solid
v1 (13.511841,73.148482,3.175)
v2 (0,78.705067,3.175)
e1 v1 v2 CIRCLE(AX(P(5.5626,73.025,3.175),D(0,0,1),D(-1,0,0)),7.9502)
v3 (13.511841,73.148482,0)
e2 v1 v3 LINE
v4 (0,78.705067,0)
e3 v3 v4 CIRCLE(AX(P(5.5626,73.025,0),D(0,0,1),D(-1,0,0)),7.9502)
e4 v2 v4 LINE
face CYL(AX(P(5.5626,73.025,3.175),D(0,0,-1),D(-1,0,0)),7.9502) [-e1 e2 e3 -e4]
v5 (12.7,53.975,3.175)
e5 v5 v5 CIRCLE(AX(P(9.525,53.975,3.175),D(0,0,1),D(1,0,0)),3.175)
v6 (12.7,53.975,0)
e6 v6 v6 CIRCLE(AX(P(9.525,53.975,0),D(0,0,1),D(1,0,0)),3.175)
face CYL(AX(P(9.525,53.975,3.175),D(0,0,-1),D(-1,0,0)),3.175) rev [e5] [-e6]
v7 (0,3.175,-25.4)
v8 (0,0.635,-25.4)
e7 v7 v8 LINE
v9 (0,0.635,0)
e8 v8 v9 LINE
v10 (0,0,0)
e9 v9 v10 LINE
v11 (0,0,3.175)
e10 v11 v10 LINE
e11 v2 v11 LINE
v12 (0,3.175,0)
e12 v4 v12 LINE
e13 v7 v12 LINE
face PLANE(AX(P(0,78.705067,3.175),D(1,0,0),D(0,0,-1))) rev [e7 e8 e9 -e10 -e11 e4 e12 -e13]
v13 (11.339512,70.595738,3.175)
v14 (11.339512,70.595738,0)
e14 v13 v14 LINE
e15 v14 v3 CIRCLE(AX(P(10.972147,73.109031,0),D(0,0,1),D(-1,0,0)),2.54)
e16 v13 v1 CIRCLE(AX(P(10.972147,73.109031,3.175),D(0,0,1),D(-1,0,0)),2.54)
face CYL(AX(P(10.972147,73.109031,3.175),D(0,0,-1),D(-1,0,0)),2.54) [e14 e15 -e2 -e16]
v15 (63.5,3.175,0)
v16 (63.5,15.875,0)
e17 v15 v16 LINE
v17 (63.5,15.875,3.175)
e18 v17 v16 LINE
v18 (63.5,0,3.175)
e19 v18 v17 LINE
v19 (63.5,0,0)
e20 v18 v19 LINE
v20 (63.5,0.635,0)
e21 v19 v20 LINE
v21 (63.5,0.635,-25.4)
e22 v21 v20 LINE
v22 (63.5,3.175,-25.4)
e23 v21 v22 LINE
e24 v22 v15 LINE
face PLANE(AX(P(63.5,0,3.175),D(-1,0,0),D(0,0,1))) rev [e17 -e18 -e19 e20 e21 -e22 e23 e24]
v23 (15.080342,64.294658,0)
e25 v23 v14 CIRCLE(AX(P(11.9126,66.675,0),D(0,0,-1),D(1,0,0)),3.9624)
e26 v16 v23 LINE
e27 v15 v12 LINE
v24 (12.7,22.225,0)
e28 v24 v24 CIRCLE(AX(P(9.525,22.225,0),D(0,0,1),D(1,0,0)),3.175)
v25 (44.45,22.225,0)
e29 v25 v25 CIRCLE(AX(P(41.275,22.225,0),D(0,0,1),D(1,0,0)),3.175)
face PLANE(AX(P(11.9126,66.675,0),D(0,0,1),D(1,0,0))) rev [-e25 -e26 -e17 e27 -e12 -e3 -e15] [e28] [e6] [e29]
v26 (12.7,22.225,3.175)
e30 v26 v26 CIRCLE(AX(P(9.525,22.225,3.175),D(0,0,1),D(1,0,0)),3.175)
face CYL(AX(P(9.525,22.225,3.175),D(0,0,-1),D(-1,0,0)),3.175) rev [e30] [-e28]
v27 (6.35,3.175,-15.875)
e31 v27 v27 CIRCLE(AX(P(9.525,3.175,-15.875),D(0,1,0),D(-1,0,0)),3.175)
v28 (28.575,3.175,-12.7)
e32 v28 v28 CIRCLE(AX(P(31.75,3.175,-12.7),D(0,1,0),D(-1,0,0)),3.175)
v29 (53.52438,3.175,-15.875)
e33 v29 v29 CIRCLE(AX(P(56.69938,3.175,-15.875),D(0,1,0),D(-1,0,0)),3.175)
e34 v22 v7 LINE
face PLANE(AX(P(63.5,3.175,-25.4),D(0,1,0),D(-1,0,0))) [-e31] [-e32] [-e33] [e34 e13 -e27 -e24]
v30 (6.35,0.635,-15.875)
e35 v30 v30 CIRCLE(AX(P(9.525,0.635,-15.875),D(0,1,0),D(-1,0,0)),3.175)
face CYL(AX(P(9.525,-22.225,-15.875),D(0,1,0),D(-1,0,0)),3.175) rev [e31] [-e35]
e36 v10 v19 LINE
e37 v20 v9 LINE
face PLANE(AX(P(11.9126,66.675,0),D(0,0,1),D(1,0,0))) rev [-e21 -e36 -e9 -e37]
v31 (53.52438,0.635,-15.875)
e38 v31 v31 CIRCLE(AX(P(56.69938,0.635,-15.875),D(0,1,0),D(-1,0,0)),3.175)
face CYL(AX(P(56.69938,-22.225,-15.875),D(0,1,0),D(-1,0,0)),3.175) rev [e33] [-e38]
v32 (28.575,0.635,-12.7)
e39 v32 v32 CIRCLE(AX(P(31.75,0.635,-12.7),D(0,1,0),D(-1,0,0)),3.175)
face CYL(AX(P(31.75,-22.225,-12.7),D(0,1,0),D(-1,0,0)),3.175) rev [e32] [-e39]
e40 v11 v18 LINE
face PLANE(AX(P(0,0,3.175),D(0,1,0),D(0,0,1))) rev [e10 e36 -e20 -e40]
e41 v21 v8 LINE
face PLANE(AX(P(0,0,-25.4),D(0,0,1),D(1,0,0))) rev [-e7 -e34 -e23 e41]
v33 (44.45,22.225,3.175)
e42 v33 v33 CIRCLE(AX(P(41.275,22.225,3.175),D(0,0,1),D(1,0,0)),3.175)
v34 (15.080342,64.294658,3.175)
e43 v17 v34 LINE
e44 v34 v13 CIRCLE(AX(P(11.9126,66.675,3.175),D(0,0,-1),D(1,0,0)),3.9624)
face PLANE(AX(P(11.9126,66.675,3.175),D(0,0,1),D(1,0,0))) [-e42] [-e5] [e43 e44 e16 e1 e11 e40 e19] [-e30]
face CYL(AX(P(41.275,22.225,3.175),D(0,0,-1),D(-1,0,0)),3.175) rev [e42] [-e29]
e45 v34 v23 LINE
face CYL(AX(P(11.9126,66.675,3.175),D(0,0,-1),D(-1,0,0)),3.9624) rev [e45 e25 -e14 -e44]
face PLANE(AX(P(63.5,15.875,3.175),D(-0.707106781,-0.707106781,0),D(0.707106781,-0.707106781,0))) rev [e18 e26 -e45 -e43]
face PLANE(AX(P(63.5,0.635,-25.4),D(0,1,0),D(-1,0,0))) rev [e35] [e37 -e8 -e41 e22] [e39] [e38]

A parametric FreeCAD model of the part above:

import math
import FreeCAD as App
import Part
import Sketcher

V = App.Vector
Q = App.Units.Quantity


def add_polygon(sketch, points):
    """Adds a closed chain of lines whose ends are joined by coincident constraints."""
    first, n = sketch.GeometryCount, len(points)
    for a, b in zip(points, points[1:] + points[:1]):
        sketch.addGeometry(Part.LineSegment(App.Vector(*a, 0), App.Vector(*b, 0)), False)
    for i in range(n):
        sketch.addConstraint(Sketcher.Constraint("Coincident", first + i, 2, first + (i + 1) % n, 1))

doc = App.newDocument("Part")
body = doc.addObject("PartDesign::Body", "Body")

sketch1 = body.newObject("Sketcher::SketchObject", "Sketch")
sketch1.AttachmentSupport = (doc.getObject("XY_Plane"), [""])
sketch1.MapMode = "FlatFace"
sketch1.addGeometry(Part.LineSegment(V(0, 0, 0), V(63.5, 0, 0)), False)
sketch1.addGeometry(Part.LineSegment(V(63.5, 0, 0), V(63.5, 15.9, 0)), False)
sketch1.addGeometry(Part.LineSegment(V(63.5, 15.9, 0), V(15.1, 64.3, 0)), False)
sketch1.addGeometry(Part.ArcOfCircle(Part.Circle(V(11.9, 66.7, 0), V(0, 0, 1), 4), math.radians(98), math.radians(323)), False)
sketch1.addGeometry(Part.ArcOfCircle(Part.Circle(V(11, 73.1, 0), V(0, 0, 1), 2.5), math.radians(-82), math.radians(1)), False)
sketch1.addGeometry(Part.ArcOfCircle(Part.Circle(V(5.6, 73, 0), V(0, 0, 1), 8), math.radians(1), math.radians(134)), False)
sketch1.addGeometry(Part.LineSegment(V(0, 78.7, 0), V(0, 0, 0)), False)
sketch1.addGeometry(Part.Circle(V(9.5, 22.2, 0), V(0, 0, 1), 3.2), False)
sketch1.addGeometry(Part.Circle(V(41.3, 22.2, 0), V(0, 0, 1), 3.2), False)
sketch1.addGeometry(Part.Circle(V(9.5, 54, 0), V(0, 0, 1), 3.2), False)
sketch1.addConstraint(Sketcher.Constraint("Coincident", 0, 2, 1, 1))
sketch1.addConstraint(Sketcher.Constraint("Coincident", 1, 2, 2, 1))
sketch1.addConstraint(Sketcher.Constraint("Coincident", 2, 2, 3, 2))
sketch1.addConstraint(Sketcher.Constraint("Tangent", 3, 1, 4, 1))
sketch1.addConstraint(Sketcher.Constraint("Tangent", 4, 2, 5, 1))
sketch1.addConstraint(Sketcher.Constraint("Coincident", 5, 2, 6, 1))
sketch1.addConstraint(Sketcher.Constraint("Coincident", 6, 2, 0, 1))
sketch1.addConstraint(Sketcher.Constraint("Horizontal", 0))
sketch1.addConstraint(Sketcher.Constraint("Vertical", 1))
sketch1.addConstraint(Sketcher.Constraint("Vertical", 6))
sketch1.addConstraint(Sketcher.Constraint("Coincident", 6, 2, -1, 1))
sketch1.addConstraint(Sketcher.Constraint("Equal", 7, 8))
sketch1.addConstraint(Sketcher.Constraint("Equal", 8, 9))
sketch1.addConstraint(Sketcher.Constraint("Horizontal", 7, 3, 8, 3))
sketch1.addConstraint(Sketcher.Constraint("Vertical", 7, 3, 9, 3))
sketch1.addConstraint(Sketcher.Constraint("Radius", 4, Q("0.1 in")))
sketch1.addConstraint(Sketcher.Constraint("Diameter", 7, Q("0.25 in")))
sketch1.addConstraint(Sketcher.Constraint("DistanceX", 0, 1, 0, 2, Q("2.5 in")))
sketch1.addConstraint(Sketcher.Constraint("Angle", 2, Q("135 deg")))
sketch1.addConstraint(Sketcher.Constraint("Radius", 3, Q("0.156 in")))
sketch1.addConstraint(Sketcher.Constraint("Radius", 5, Q("0.313 in")))
sketch1.addConstraint(Sketcher.Constraint("DistanceY", 7, 3, 5, 3, Q("2 in")))
sketch1.addConstraint(Sketcher.Constraint("DistanceY", 1, 2, 3, 3, Q("2 in")))
sketch1.addConstraint(Sketcher.Constraint("DistanceY", 9, 3, 3, 3, Q("0.5 in")))
sketch1.addConstraint(Sketcher.Constraint("DistanceY", 1, 1, 1, 2, Q("0.625 in")))
sketch1.addConstraint(Sketcher.Constraint("DistanceX", 5, 3, 3, 3, Q("0.25 in")))
sketch1.addConstraint(Sketcher.Constraint("DistanceY", 3, 3, 5, 3, Q("0.25 in")))
sketch1.addConstraint(Sketcher.Constraint("DistanceX", 7, 3, 8, 3, Q("1.25 in")))
sketch1.addConstraint(Sketcher.Constraint("DistanceX", -1, 1, 3, 3, Q("0.469 in")))
sketch1.addConstraint(Sketcher.Constraint("DistanceX", -1, 1, 7, 3, Q("0.375 in")))
pad1 = body.newObject("PartDesign::Pad", "Pad")
pad1.Profile = sketch1
pad1.Length = Q("0.125 in")

sketch2 = body.newObject("Sketcher::SketchObject", "Sketch001")
sketch2.AttachmentSupport = (doc.getObject("XY_Plane"), [""])
sketch2.MapMode = "FlatFace"
add_polygon(sketch2, [(63.5, 3.2), (63.5, 0.6), (0, 0.6), (0, 3.2)])
sketch2.addConstraint(Sketcher.Constraint("Vertical", 0))
sketch2.addConstraint(Sketcher.Constraint("Horizontal", 1))
sketch2.addConstraint(Sketcher.Constraint("Vertical", 2))
sketch2.addConstraint(Sketcher.Constraint("Horizontal", 3))
sketch2.addConstraint(Sketcher.Constraint("PointOnObject", 1, 2, -2))
sketch2.addConstraint(Sketcher.Constraint("DistanceX", 1, 2, 1, 1, Q("2.5 in")))
sketch2.addConstraint(Sketcher.Constraint("DistanceY", 0, 2, 0, 1, Q("0.1 in")))
sketch2.addConstraint(Sketcher.Constraint("DistanceY", -1, 1, 0, 2, Q("0.025 in")))
pad2 = body.newObject("PartDesign::Pad", "Pad001")
pad2.Profile = sketch2
pad2.Length = Q("1 in")
pad2.Reversed = True

sketch3 = body.newObject("Sketcher::SketchObject", "Sketch002")
sketch3.AttachmentSupport = (doc.getObject("XZ_Plane"), [""])
sketch3.MapMode = "FlatFace"
sketch3.AttachmentOffset = App.Placement(V(0, 0, -0.125 * 25.4), App.Rotation())
sketch3.addGeometry(Part.Circle(V(31.8, -12.7, 0), V(0, 0, 1), 3.2), False)
sketch3.addGeometry(Part.Circle(V(9.5, -15.9, 0), V(0, 0, 1), 3.2), False)
sketch3.addGeometry(Part.Circle(V(56.7, -15.9, 0), V(0, 0, 1), 3.2), False)
sketch3.addConstraint(Sketcher.Constraint("Equal", 0, 1))
sketch3.addConstraint(Sketcher.Constraint("Equal", 1, 2))
sketch3.addConstraint(Sketcher.Constraint("Horizontal", 1, 3, 2, 3))
sketch3.addConstraint(Sketcher.Constraint("Diameter", 0, Q("0.25 in")))
sketch3.addConstraint(Sketcher.Constraint("DistanceY", 0, 3, -1, 1, Q("0.5 in")))
sketch3.addConstraint(Sketcher.Constraint("DistanceX", -1, 1, 0, 3, Q("1.25 in")))
sketch3.addConstraint(Sketcher.Constraint("DistanceX", -1, 1, 1, 3, Q("0.375 in")))
sketch3.addConstraint(Sketcher.Constraint("DistanceY", 1, 3, -1, 1, Q("0.625 in")))
sketch3.addConstraint(Sketcher.Constraint("DistanceX", -1, 1, 2, 3, 56.69938))
pocket1 = body.newObject("PartDesign::Pocket", "Pocket")
pocket1.Profile = sketch3
pocket1.Length = Q("1 in")
pocket1.Reversed = True

doc.recompute()
